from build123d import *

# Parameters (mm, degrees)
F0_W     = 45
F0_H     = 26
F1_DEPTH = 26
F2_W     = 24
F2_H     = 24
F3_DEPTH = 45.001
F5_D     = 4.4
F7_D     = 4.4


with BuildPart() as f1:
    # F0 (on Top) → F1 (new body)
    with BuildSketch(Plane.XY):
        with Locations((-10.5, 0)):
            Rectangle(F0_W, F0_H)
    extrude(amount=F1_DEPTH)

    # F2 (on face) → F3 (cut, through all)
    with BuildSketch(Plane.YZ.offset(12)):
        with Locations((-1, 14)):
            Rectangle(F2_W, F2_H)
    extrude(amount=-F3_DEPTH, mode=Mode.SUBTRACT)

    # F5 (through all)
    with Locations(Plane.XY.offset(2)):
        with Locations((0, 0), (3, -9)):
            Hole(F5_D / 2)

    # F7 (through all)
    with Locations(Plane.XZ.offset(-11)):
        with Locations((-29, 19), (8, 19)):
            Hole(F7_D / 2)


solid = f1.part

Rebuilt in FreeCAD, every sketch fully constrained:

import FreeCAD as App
import Part
import Sketcher
from FreeCAD import Vector

doc = App.newDocument("Part")
body = doc.addObject("PartDesign::Body", "Body")

# Sketch on XY plane
sketch1 = body.newObject("Sketcher::SketchObject", "Sketch")
sketch1.AttachmentSupport = (doc.getObject("XY_Plane"), [""])
sketch1.MapMode = "FlatFace"
sketch1.addGeometry([
    Part.LineSegment(Vector(-33, 13, 0), Vector(-33, -13, 0)),
    Part.LineSegment(Vector(-33, -13, 0), Vector(12, -13, 0)),
    Part.LineSegment(Vector(12, -13, 0), Vector(12, 13, 0)),
    Part.LineSegment(Vector(12, 13, 0), Vector(-33, 13, 0)),
], False)
sketch1.addConstraint([
    Sketcher.Constraint("Coincident", 0, 2, 1, 1),
    Sketcher.Constraint("Coincident", 1, 2, 2, 1),
    Sketcher.Constraint("Coincident", 2, 2, 3, 1),
    Sketcher.Constraint("Coincident", 3, 2, 0, 1),
    Sketcher.Constraint("Vertical", 0),
    Sketcher.Constraint("Horizontal", 1),
    Sketcher.Constraint("Vertical", 2),
    Sketcher.Constraint("Horizontal", 3),
    Sketcher.Constraint("DistanceX", 1, 1, 1, 2, 45.0),
    Sketcher.Constraint("DistanceY", 0, 2, 0, 1, 26.0),
    Sketcher.Constraint("DistanceX", 0, 2, -1, 1, 33.0),
    Sketcher.Constraint("DistanceY", 0, 2, -1, 1, 13.0),
])
pad1 = body.newObject("PartDesign::Pad", "Pad")
pad1.Profile = sketch1
pad1.Length = 26

# Sketch on YZ plane
sketch2 = body.newObject("Sketcher::SketchObject", "Sketch001")
sketch2.AttachmentSupport = (doc.getObject("YZ_Plane"), [""])
sketch2.MapMode = "FlatFace"
sketch2.AttachmentOffset = App.Placement(Vector(0, 0, 12), App.Rotation())
sketch2.addGeometry([
    Part.LineSegment(Vector(-13, 26, 0), Vector(-13, 2, 0)),
    Part.LineSegment(Vector(-13, 2, 0), Vector(11, 2, 0)),
    Part.LineSegment(Vector(11, 2, 0), Vector(11, 26, 0)),
    Part.LineSegment(Vector(11, 26, 0), Vector(-13, 26, 0)),
], False)
sketch2.addConstraint([
    Sketcher.Constraint("Coincident", 0, 2, 1, 1),
    Sketcher.Constraint("Coincident", 1, 2, 2, 1),
    Sketcher.Constraint("Coincident", 2, 2, 3, 1),
    Sketcher.Constraint("Coincident", 3, 2, 0, 1),
    Sketcher.Constraint("Vertical", 0),
    Sketcher.Constraint("Horizontal", 1),
    Sketcher.Constraint("Vertical", 2),
    Sketcher.Constraint("Horizontal", 3),
    Sketcher.Constraint("Equal", 3, 0),
    Sketcher.Constraint("DistanceX", 1, 1, 1, 2, 24.0),
    Sketcher.Constraint("DistanceX", 0, 2, -1, 1, 13.0),
    Sketcher.Constraint("DistanceY", -1, 1, 0, 2, 2.0),
])
pocket1 = body.newObject("PartDesign::Pocket", "Pocket")
pocket1.Profile = sketch2
pocket1.Type = "ThroughAll"

# Sketch on XY plane
sketch3 = body.newObject("Sketcher::SketchObject", "Sketch002")
sketch3.AttachmentSupport = (doc.getObject("XY_Plane"), [""])
sketch3.MapMode = "FlatFace"
sketch3.AttachmentOffset = App.Placement(Vector(0, 0, 2), App.Rotation())
sketch3.addGeometry([
    Part.Circle(Vector(0, 0, 0), Vector(0, 0, 1), 2.2),
    Part.Circle(Vector(3, -9, 0), Vector(0, 0, 1), 2.2),
], False)
sketch3.addConstraint([
    Sketcher.Constraint("Coincident", 0, 3, -1, 1),
    Sketcher.Constraint("Equal", 0, 1),
    Sketcher.Constraint("Diameter", 0, 4.4),
    Sketcher.Constraint("DistanceX", -1, 1, 1, 3, 3.0),
    Sketcher.Constraint("DistanceY", 1, 3, -1, 1, 9.0),
])
doc.recompute()
hole = body.newObject("PartDesign::Hole", "Hole")
hole.Profile = sketch3
hole.ThreadType = "None"
hole.Diameter = 4.4
hole.DepthType = "ThroughAll"

# Sketch on XZ plane
sketch4 = body.newObject("Sketcher::SketchObject", "Sketch003")
sketch4.AttachmentSupport = (doc.getObject("XZ_Plane"), [""])
sketch4.MapMode = "FlatFace"
sketch4.AttachmentOffset = App.Placement(Vector(0, 0, -11), App.Rotation())
sketch4.addGeometry([
    Part.Circle(Vector(-29, 19, 0), Vector(0, 0, 1), 2.2),
    Part.Circle(Vector(8, 19, 0), Vector(0, 0, 1), 2.2),
], False)
sketch4.addConstraint([
    Sketcher.Constraint("Equal", 0, 1),
    Sketcher.Constraint("Horizontal", 0, 3, 1, 3),
    Sketcher.Constraint("Diameter", 0, 4.4),
    Sketcher.Constraint("DistanceX", 0, 3, -1, 1, 29.0),
    Sketcher.Constraint("DistanceY", -1, 1, 0, 3, 19.0),
    Sketcher.Constraint("DistanceX", -1, 1, 1, 3, 8.0),
])
doc.recompute()
hole2 = body.newObject("PartDesign::Hole", "Hole001")
hole2.Profile = sketch4
hole2.ThreadType = "None"
hole2.Diameter = 4.4
hole2.DepthType = "ThroughAll"

doc.recompute()
